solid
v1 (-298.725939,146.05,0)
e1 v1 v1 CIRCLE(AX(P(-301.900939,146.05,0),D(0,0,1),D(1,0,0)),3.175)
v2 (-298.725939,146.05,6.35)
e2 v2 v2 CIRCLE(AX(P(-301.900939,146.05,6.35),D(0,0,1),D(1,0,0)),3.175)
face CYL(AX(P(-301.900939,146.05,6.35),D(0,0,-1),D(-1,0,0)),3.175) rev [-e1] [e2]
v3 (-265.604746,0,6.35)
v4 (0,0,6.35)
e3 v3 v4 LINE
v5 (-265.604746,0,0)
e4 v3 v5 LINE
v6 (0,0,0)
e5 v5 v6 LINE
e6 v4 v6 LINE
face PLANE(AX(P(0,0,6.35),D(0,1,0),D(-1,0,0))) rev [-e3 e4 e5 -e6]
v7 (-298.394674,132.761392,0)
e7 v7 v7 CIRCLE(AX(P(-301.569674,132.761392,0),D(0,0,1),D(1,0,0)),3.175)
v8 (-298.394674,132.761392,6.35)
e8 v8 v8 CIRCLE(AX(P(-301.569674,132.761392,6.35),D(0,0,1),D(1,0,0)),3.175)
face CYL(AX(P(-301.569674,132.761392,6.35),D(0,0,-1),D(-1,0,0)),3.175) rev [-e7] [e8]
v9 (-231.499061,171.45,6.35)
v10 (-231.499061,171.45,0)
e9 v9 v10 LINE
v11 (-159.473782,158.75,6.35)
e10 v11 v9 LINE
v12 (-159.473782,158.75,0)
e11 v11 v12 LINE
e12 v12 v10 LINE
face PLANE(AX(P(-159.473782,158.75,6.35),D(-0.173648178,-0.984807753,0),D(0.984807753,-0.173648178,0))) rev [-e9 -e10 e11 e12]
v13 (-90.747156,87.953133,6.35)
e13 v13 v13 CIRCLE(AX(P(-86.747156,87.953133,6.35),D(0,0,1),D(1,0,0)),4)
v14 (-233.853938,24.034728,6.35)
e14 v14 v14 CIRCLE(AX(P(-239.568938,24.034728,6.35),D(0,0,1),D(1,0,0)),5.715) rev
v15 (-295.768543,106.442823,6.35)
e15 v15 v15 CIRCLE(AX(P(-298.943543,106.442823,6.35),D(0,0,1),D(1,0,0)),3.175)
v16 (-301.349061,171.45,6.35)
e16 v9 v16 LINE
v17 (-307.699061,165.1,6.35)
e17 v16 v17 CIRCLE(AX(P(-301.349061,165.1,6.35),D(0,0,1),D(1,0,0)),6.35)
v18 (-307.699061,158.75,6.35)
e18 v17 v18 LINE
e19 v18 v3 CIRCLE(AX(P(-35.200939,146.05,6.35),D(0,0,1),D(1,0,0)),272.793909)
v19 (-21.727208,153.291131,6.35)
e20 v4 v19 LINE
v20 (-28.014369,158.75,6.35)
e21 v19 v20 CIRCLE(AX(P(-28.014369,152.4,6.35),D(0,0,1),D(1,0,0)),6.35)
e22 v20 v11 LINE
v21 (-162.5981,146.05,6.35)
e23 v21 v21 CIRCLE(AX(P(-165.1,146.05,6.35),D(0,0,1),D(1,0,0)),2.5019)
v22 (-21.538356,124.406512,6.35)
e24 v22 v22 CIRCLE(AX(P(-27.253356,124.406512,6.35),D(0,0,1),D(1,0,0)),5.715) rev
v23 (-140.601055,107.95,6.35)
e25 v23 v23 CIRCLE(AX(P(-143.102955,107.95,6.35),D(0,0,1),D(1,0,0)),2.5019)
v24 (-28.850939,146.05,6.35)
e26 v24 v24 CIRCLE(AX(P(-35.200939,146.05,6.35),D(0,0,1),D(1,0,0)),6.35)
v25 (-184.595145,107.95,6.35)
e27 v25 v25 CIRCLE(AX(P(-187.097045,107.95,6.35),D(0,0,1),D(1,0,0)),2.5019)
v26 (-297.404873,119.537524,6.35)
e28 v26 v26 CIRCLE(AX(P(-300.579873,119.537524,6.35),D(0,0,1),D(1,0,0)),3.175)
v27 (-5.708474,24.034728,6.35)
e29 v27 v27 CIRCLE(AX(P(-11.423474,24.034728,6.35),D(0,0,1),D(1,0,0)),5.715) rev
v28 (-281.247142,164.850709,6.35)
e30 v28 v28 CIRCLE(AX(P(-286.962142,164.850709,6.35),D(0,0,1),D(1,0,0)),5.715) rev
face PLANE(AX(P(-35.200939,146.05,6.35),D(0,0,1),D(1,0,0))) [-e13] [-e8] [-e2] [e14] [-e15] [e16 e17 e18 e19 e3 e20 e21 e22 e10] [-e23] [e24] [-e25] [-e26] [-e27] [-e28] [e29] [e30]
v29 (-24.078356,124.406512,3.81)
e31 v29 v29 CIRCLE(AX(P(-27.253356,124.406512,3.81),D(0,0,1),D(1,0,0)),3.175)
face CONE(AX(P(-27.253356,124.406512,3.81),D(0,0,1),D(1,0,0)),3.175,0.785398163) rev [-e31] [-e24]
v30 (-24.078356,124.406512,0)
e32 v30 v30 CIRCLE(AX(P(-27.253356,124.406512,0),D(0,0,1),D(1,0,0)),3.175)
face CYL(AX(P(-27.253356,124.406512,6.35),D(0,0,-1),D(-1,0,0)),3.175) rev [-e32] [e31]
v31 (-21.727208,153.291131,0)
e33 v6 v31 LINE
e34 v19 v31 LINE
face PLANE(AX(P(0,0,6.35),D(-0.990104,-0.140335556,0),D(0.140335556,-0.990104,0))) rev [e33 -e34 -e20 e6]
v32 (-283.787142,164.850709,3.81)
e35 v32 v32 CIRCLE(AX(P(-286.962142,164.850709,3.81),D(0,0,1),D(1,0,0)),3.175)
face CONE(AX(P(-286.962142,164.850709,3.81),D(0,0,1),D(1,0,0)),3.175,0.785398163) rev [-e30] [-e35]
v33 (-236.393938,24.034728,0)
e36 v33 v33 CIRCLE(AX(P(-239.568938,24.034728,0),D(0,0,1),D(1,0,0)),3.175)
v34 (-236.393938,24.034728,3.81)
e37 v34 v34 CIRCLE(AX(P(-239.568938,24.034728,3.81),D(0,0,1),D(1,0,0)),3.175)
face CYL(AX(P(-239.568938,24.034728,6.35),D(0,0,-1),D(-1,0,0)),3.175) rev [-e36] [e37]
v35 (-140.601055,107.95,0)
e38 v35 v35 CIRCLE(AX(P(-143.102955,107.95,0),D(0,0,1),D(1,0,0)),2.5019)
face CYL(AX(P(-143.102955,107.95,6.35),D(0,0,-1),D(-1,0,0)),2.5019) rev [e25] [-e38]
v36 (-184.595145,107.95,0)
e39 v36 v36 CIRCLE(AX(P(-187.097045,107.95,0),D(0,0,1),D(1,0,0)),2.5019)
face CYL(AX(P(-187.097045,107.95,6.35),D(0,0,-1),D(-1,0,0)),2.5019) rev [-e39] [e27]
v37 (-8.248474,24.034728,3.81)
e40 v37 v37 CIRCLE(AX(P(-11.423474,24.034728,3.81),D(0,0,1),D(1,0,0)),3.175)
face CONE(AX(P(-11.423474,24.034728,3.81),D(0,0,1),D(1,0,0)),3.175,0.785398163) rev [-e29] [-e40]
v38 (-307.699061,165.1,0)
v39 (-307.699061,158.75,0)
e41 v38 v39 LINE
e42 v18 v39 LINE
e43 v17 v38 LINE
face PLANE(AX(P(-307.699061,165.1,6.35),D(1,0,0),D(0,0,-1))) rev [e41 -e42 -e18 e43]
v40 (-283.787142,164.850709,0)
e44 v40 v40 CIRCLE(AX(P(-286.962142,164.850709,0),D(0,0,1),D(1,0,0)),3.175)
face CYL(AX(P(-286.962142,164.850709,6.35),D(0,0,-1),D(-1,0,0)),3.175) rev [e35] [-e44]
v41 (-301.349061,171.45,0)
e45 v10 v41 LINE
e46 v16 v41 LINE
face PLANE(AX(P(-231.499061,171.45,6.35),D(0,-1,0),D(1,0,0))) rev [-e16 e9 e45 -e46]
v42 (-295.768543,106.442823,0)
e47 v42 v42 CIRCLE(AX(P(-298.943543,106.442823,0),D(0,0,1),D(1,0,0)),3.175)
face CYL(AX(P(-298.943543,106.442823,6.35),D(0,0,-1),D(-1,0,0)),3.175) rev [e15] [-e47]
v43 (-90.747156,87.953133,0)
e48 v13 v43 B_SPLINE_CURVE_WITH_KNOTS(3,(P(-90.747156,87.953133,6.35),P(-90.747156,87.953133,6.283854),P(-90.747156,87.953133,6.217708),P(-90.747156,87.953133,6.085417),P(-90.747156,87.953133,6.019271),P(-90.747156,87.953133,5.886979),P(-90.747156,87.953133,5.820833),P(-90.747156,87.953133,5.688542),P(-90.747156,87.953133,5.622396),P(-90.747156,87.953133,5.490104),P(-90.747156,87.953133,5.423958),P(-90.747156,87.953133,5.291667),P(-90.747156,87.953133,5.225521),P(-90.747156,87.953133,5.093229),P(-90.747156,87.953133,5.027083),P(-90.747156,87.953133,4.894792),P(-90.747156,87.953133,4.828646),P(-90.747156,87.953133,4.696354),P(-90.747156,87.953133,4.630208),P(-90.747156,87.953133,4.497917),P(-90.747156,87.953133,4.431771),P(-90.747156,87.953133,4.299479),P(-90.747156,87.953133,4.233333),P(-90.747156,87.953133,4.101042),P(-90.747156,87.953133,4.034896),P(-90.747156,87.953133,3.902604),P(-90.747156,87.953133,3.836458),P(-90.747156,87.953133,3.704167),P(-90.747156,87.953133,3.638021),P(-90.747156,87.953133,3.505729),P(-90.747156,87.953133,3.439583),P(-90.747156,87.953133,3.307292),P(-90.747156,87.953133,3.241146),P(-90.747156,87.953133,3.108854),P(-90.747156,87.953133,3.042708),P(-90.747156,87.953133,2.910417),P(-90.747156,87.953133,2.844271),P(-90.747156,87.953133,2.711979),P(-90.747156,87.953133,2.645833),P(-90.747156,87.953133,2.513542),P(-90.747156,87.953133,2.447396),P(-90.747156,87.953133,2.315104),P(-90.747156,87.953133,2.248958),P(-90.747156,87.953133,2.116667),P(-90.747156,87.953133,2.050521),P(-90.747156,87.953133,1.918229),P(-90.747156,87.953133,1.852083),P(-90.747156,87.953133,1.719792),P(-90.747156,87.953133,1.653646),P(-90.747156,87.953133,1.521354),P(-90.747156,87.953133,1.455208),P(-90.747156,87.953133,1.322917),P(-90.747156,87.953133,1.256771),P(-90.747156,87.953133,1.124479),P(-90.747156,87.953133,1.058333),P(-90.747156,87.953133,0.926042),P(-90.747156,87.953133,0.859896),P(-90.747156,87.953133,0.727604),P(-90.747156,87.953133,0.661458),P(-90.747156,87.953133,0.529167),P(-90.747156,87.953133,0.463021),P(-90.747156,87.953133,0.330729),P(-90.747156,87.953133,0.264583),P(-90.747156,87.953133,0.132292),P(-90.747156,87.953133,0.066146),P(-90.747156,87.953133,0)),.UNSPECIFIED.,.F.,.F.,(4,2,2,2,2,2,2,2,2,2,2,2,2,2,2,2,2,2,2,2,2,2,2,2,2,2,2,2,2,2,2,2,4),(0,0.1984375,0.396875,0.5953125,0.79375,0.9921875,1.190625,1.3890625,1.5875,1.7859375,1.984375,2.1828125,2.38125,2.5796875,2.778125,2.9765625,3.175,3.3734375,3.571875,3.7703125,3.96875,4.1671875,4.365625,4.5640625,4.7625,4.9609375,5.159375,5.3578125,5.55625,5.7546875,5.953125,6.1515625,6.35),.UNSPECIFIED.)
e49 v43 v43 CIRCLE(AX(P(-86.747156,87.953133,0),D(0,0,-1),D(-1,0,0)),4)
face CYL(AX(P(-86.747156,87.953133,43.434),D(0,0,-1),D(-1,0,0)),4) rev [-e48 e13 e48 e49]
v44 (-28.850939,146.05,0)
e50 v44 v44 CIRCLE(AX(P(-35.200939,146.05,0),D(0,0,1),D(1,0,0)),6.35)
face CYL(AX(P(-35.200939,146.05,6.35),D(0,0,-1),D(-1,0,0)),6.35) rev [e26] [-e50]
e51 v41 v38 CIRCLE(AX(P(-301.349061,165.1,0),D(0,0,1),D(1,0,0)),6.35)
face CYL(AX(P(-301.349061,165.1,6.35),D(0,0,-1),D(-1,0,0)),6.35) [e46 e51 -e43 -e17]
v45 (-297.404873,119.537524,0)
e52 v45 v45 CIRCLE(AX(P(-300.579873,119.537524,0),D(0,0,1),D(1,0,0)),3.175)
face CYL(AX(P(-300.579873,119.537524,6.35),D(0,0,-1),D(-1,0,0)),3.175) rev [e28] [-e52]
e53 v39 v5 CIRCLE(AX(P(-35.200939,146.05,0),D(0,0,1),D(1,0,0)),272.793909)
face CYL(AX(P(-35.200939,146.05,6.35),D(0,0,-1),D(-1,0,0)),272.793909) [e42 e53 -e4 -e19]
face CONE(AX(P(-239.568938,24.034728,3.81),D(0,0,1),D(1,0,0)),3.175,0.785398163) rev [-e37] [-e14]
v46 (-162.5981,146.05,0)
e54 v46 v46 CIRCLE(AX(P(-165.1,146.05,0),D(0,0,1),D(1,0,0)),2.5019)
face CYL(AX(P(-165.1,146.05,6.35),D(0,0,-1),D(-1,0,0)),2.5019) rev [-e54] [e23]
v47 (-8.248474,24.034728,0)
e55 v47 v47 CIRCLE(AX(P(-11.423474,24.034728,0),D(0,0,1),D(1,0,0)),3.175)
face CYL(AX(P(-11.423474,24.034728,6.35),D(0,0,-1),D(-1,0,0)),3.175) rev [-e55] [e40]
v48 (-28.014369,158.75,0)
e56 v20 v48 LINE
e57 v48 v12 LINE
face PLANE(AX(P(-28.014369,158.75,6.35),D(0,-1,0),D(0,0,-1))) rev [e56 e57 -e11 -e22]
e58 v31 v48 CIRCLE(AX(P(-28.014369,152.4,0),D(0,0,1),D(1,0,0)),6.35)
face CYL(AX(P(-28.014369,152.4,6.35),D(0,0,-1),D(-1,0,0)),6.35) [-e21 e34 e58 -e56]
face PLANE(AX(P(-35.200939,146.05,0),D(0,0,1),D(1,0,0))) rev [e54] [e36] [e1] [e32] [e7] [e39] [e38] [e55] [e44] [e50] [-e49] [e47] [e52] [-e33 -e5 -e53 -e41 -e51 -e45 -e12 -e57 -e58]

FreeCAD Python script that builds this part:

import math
import FreeCAD as App
import Part
import Sketcher
from FreeCAD import Vector
Q = App.Units.Quantity


def edges_at(feature, points):
    """Names of the edges that pass closest to the given points."""
    edges = feature.Shape.Edges
    near = lambda p: min(range(len(edges)), key=lambda i: edges[i].distToShape(Part.Vertex(*p))[0])
    return sorted({f"Edge{near(p) + 1}" for p in points})

doc = App.newDocument("Part")
body = doc.addObject("PartDesign::Body", "Body")

sketch1 = doc.addObject("Sketcher::SketchObject", "Sketch")
body.addObject(sketch1)
sketch1.AttachmentSupport = (doc.XY_Plane, [""])
sketch1.MapMode = "FlatFace"
sketch1.addGeometry(Part.LineSegment(Vector(-265.6, 0, 0), Vector(0, 0, 0)), False)
sketch1.addGeometry(Part.LineSegment(Vector(0, 0, 0), Vector(-21.7, 153.3, 0)), False)
sketch1.addGeometry(Part.ArcOfCircle(Part.Circle(Vector(-28, 152.4, 0), Vector(0, 0, 1), 6.4), math.radians(8), math.radians(90)), False)
sketch1.addGeometry(Part.LineSegment(Vector(-28, 158.8, 0), Vector(-159.5, 158.8, 0)), False)
sketch1.addGeometry(Part.LineSegment(Vector(-159.5, 158.8, 0), Vector(-231.5, 171.4, 0)), False)
sketch1.addGeometry(Part.LineSegment(Vector(-231.5, 171.4, 0), Vector(-301.3, 171.4, 0)), False)
sketch1.addGeometry(Part.ArcOfCircle(Part.Circle(Vector(-301.3, 165.1, 0), Vector(0, 0, 1), 6.3), math.radians(90), math.radians(180)), False)
sketch1.addGeometry(Part.LineSegment(Vector(-307.7, 165.1, 0), Vector(-307.7, 158.8, 0)), False)
sketch1.addGeometry(Part.ArcOfCircle(Part.Circle(Vector(-35.2, 146.1, 0), Vector(0, 0, 1), 272.8), math.radians(177), math.radians(212)), False)
sketch1.addGeometry(Part.Circle(Vector(-11.4, 24, 0), Vector(0, 0, 1), 3.2), False)
sketch1.addGeometry(Part.Circle(Vector(-239.6, 24, 0), Vector(0, 0, 1), 3.2), False)
sketch1.addGeometry(Part.Circle(Vector(-27.3, 124.4, 0), Vector(0, 0, 1), 3.2), False)
sketch1.addGeometry(Part.Circle(Vector(-143.1, 108, 0), Vector(0, 0, 1), 2.5), False)
sketch1.addGeometry(Part.Circle(Vector(-35.2, 146.1, 0), Vector(0, 0, 1), 6.3), False)
sketch1.addGeometry(Part.Circle(Vector(-187.1, 108, 0), Vector(0, 0, 1), 2.5), False)
sketch1.addGeometry(Part.Circle(Vector(-298.9, 106.4, 0), Vector(0, 0, 1), 3.2), False)
sketch1.addGeometry(Part.Circle(Vector(-300.6, 119.5, 0), Vector(0, 0, 1), 3.2), False)
sketch1.addGeometry(Part.Circle(Vector(-165.1, 146.1, 0), Vector(0, 0, 1), 2.5), False)
sketch1.addGeometry(Part.Circle(Vector(-301.6, 132.8, 0), Vector(0, 0, 1), 3.2), False)
sketch1.addGeometry(Part.Circle(Vector(-301.9, 146.1, 0), Vector(0, 0, 1), 3.2), False)
sketch1.addGeometry(Part.Circle(Vector(-287, 164.9, 0), Vector(0, 0, 1), 3.2), False)
sketch1.addConstraint(Sketcher.Constraint("Coincident", 0, 2, 1, 1))
sketch1.addConstraint(Sketcher.Constraint("Tangent", 1, 2, 2, 1))
sketch1.addConstraint(Sketcher.Constraint("Tangent", 2, 2, 3, 1))
sketch1.addConstraint(Sketcher.Constraint("Coincident", 3, 2, 4, 1))
sketch1.addConstraint(Sketcher.Constraint("Coincident", 4, 2, 5, 1))
sketch1.addConstraint(Sketcher.Constraint("Tangent", 5, 2, 6, 1))
sketch1.addConstraint(Sketcher.Constraint("Tangent", 6, 2, 7, 1))
sketch1.addConstraint(Sketcher.Constraint("Coincident", 7, 2, 8, 1))
sketch1.addConstraint(Sketcher.Constraint("Coincident", 8, 2, 0, 1))
sketch1.addConstraint(Sketcher.Constraint("Horizontal", 0))
sketch1.addConstraint(Sketcher.Constraint("Horizontal", 3))
sketch1.addConstraint(Sketcher.Constraint("Horizontal", 5))
sketch1.addConstraint(Sketcher.Constraint("Vertical", 7))
sketch1.addConstraint(Sketcher.Constraint("Coincident", 0, 2, -1, 1))
sketch1.addConstraint(Sketcher.Constraint("Coincident", 13, 3, 8, 3))
sketch1.addConstraint(Sketcher.Constraint("Equal", 2, 6))
sketch1.addConstraint(Sketcher.Constraint("Equal", 9, 10))
sketch1.addConstraint(Sketcher.Constraint("Equal", 10, 11))
sketch1.addConstraint(Sketcher.Constraint("Equal", 6, 13))
sketch1.addConstraint(Sketcher.Constraint("Equal", 12, 14))
sketch1.addConstraint(Sketcher.Constraint("Equal", 11, 15))
sketch1.addConstraint(Sketcher.Constraint("Equal", 15, 16))
sketch1.addConstraint(Sketcher.Constraint("Equal", 14, 17))
sketch1.addConstraint(Sketcher.Constraint("Equal", 16, 18))
sketch1.addConstraint(Sketcher.Constraint("Equal", 18, 19))
sketch1.addConstraint(Sketcher.Constraint("Equal", 19, 20))
sketch1.addConstraint(Sketcher.Constraint("Horizontal", 9, 3, 10, 3))
sketch1.addConstraint(Sketcher.Constraint("Horizontal", 12, 3, 14, 3))
sketch1.addConstraint(Sketcher.Constraint("Horizontal", 13, 3, 17, 3))
sketch1.addConstraint(Sketcher.Constraint("Horizontal", 17, 3, 19, 3))
sketch1.addConstraint(Sketcher.Constraint("Horizontal", 3, 2, 7, 2))
sketch1.addConstraint(Sketcher.Constraint("Diameter", 13, Q("0.5 in")))
sketch1.addConstraint(Sketcher.Constraint("Diameter", 9, Q("0.25 in")))
sketch1.addConstraint(Sketcher.Constraint("Diameter", 12, Q("0.197 in")))
sketch1.addConstraint(Sketcher.Constraint("DistanceY", -1, 1, 2, 3, Q("6 in")))
sketch1.addConstraint(Sketcher.Constraint("Angle", 4, Q("170 deg")))
sketch1.addConstraint(Sketcher.Constraint("DistanceY", 12, 3, 3, 2, Q("2 in")))
sketch1.addConstraint(Sketcher.Constraint("DistanceY", 17, 3, 4, 2, Q("1 in")))
sketch1.addConstraint(Sketcher.Constraint("DistanceX", 5, 2, 5, 1, Q("2.75 in")))
sketch1.addConstraint(Sketcher.Constraint("DistanceY", 7, 2, 7, 1, Q("0.25 in")))
sketch1.addConstraint(Sketcher.Constraint("DistanceX", 17, 3, -1, 1, Q("6.5 in")))
sketch1.addConstraint(Sketcher.Constraint("Radius", 8, Q("272.793909 mm")))
sketch1.addConstraint(Sketcher.Constraint("DistanceX", 10, 3, 8, 3, Q("204.367999 mm")))
sketch1.addConstraint(Sketcher.Constraint("DistanceX", 12, 3, 11, 3, Q("115.849599 mm")))
sketch1.addConstraint(Sketcher.Constraint("DistanceX", 15, 3, 14, 3, Q("111.846498 mm")))
sketch1.addConstraint(Sketcher.Constraint("DistanceY", 15, 3, 16, 3, Q("13.094701 mm")))
sketch1.addConstraint(Sketcher.Constraint("DistanceX", 18, 3, 16, 3, Q("0.989801 mm")))
sketch1.addConstraint(Sketcher.Constraint("DistanceX", 15, 3, 20, 3, Q("11.981401 mm")))
sketch1.addConstraint(Sketcher.Constraint("DistanceX", 8, 2, 14, 3, Q("78.5077 mm")))
sketch1.addConstraint(Sketcher.Constraint("Distance", 1, Q("154.823262 mm")))
sketch1.addConstraint(Sketcher.Constraint("DistanceX", 0, 1, 0, 2, Q("265.604746 mm")))
sketch1.addConstraint(Sketcher.Constraint("DistanceY", -1, 1, 9, 3, Q("24.034728 mm")))
sketch1.addConstraint(Sketcher.Constraint("DistanceY", -1, 1, 11, 3, Q("124.406512 mm")))
sketch1.addConstraint(Sketcher.Constraint("DistanceY", -1, 1, 18, 3, Q("132.761392 mm")))
sketch1.addConstraint(Sketcher.Constraint("DistanceX", 19, 3, -1, 1, Q("301.900939 mm")))
sketch1.addConstraint(Sketcher.Constraint("DistanceY", -1, 1, 20, 3, Q("164.850709 mm")))
sketch1.addConstraint(Sketcher.Constraint("DistanceX", 10, 3, 11, 3, Q("212.315581 mm")))
sketch1.addConstraint(Sketcher.Constraint("DistanceX", 12, 3, 9, 3, Q("131.679481 mm")))
sketch1.addConstraint(Sketcher.Constraint("DistanceX", 16, 3, 15, 3, Q("1.636329 mm")))
sketch1.addConstraint(Sketcher.Constraint("DistanceY", 15, 3, 18, 3, Q("26.318569 mm")))
pad1 = doc.addObject("PartDesign::Pad", "Pad")
body.addObject(pad1)
pad1.Profile = sketch1
pad1.Length = Q("0.25 in")
doc.recompute()

chamfer = doc.addObject("PartDesign::Chamfer", "Chamfer")
body.addObject(chamfer)
chamfer.Base = (pad1, edges_at(pad1, [
    (-14.598, 24.035, 6.35),
    (-30.428, 124.407, 6.35),
    (-242.744, 24.035, 6.35),
    (-290.137, 164.851, 6.35),
]))
chamfer.Size = Q("0.1 in")

sketch2 = doc.addObject("Sketcher::SketchObject", "Sketch001")
body.addObject(sketch2)
sketch2.AttachmentSupport = (doc.XY_Plane, [""])
sketch2.MapMode = "FlatFace"
sketch2.addGeometry(Part.Circle(Vector(-86.7, 88, 0), Vector(0, 0, 1), 4), False)
sketch2.addConstraint(Sketcher.Constraint("Diameter", 0, Q("8 mm")))
sketch2.addConstraint(Sketcher.Constraint("DistanceX", 0, 3, -1, 1, Q("86.747156 mm")))
sketch2.addConstraint(Sketcher.Constraint("DistanceY", -1, 1, 0, 3, Q("87.953133 mm")))
pocket1 = doc.addObject("PartDesign::Pocket", "Pocket")
body.addObject(pocket1)
pocket1.Profile = sketch2
pocket1.Length = Q("1.71 in")
pocket1.Reversed = True

doc.recompute()
